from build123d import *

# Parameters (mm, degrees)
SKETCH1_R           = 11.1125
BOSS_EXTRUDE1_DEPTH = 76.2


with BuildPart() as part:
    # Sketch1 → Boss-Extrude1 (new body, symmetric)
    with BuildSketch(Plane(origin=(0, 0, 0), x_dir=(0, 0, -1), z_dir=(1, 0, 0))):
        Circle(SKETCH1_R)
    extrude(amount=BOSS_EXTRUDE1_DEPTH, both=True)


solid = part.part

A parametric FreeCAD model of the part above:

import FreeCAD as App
import Part
import Sketcher
from FreeCAD import Vector
Q = App.Units.Quantity

doc = App.newDocument("Part")
body = doc.addObject("PartDesign::Body", "Body")

# Sketch on YZ plane
sketch1 = body.newObject("Sketcher::SketchObject", "Sketch")
sketch1.AttachmentSupport = (doc.getObject("YZ_Plane"), [""])
sketch1.MapMode = "FlatFace"
sketch1.addGeometry(Part.Circle(Vector(0, 0, 0), Vector(0, 0, 1), 11.1125), False)
sketch1.addConstraint([
    Sketcher.Constraint("Coincident", 0, 3, -1, 1),
    Sketcher.Constraint("Diameter", 0, Q("0.875 in")),
])
pad1 = body.newObject("PartDesign::Pad", "Pad")
pad1.Profile = sketch1
pad1.Length = Q("6 in")
pad1.Midplane = True

doc.recompute()
